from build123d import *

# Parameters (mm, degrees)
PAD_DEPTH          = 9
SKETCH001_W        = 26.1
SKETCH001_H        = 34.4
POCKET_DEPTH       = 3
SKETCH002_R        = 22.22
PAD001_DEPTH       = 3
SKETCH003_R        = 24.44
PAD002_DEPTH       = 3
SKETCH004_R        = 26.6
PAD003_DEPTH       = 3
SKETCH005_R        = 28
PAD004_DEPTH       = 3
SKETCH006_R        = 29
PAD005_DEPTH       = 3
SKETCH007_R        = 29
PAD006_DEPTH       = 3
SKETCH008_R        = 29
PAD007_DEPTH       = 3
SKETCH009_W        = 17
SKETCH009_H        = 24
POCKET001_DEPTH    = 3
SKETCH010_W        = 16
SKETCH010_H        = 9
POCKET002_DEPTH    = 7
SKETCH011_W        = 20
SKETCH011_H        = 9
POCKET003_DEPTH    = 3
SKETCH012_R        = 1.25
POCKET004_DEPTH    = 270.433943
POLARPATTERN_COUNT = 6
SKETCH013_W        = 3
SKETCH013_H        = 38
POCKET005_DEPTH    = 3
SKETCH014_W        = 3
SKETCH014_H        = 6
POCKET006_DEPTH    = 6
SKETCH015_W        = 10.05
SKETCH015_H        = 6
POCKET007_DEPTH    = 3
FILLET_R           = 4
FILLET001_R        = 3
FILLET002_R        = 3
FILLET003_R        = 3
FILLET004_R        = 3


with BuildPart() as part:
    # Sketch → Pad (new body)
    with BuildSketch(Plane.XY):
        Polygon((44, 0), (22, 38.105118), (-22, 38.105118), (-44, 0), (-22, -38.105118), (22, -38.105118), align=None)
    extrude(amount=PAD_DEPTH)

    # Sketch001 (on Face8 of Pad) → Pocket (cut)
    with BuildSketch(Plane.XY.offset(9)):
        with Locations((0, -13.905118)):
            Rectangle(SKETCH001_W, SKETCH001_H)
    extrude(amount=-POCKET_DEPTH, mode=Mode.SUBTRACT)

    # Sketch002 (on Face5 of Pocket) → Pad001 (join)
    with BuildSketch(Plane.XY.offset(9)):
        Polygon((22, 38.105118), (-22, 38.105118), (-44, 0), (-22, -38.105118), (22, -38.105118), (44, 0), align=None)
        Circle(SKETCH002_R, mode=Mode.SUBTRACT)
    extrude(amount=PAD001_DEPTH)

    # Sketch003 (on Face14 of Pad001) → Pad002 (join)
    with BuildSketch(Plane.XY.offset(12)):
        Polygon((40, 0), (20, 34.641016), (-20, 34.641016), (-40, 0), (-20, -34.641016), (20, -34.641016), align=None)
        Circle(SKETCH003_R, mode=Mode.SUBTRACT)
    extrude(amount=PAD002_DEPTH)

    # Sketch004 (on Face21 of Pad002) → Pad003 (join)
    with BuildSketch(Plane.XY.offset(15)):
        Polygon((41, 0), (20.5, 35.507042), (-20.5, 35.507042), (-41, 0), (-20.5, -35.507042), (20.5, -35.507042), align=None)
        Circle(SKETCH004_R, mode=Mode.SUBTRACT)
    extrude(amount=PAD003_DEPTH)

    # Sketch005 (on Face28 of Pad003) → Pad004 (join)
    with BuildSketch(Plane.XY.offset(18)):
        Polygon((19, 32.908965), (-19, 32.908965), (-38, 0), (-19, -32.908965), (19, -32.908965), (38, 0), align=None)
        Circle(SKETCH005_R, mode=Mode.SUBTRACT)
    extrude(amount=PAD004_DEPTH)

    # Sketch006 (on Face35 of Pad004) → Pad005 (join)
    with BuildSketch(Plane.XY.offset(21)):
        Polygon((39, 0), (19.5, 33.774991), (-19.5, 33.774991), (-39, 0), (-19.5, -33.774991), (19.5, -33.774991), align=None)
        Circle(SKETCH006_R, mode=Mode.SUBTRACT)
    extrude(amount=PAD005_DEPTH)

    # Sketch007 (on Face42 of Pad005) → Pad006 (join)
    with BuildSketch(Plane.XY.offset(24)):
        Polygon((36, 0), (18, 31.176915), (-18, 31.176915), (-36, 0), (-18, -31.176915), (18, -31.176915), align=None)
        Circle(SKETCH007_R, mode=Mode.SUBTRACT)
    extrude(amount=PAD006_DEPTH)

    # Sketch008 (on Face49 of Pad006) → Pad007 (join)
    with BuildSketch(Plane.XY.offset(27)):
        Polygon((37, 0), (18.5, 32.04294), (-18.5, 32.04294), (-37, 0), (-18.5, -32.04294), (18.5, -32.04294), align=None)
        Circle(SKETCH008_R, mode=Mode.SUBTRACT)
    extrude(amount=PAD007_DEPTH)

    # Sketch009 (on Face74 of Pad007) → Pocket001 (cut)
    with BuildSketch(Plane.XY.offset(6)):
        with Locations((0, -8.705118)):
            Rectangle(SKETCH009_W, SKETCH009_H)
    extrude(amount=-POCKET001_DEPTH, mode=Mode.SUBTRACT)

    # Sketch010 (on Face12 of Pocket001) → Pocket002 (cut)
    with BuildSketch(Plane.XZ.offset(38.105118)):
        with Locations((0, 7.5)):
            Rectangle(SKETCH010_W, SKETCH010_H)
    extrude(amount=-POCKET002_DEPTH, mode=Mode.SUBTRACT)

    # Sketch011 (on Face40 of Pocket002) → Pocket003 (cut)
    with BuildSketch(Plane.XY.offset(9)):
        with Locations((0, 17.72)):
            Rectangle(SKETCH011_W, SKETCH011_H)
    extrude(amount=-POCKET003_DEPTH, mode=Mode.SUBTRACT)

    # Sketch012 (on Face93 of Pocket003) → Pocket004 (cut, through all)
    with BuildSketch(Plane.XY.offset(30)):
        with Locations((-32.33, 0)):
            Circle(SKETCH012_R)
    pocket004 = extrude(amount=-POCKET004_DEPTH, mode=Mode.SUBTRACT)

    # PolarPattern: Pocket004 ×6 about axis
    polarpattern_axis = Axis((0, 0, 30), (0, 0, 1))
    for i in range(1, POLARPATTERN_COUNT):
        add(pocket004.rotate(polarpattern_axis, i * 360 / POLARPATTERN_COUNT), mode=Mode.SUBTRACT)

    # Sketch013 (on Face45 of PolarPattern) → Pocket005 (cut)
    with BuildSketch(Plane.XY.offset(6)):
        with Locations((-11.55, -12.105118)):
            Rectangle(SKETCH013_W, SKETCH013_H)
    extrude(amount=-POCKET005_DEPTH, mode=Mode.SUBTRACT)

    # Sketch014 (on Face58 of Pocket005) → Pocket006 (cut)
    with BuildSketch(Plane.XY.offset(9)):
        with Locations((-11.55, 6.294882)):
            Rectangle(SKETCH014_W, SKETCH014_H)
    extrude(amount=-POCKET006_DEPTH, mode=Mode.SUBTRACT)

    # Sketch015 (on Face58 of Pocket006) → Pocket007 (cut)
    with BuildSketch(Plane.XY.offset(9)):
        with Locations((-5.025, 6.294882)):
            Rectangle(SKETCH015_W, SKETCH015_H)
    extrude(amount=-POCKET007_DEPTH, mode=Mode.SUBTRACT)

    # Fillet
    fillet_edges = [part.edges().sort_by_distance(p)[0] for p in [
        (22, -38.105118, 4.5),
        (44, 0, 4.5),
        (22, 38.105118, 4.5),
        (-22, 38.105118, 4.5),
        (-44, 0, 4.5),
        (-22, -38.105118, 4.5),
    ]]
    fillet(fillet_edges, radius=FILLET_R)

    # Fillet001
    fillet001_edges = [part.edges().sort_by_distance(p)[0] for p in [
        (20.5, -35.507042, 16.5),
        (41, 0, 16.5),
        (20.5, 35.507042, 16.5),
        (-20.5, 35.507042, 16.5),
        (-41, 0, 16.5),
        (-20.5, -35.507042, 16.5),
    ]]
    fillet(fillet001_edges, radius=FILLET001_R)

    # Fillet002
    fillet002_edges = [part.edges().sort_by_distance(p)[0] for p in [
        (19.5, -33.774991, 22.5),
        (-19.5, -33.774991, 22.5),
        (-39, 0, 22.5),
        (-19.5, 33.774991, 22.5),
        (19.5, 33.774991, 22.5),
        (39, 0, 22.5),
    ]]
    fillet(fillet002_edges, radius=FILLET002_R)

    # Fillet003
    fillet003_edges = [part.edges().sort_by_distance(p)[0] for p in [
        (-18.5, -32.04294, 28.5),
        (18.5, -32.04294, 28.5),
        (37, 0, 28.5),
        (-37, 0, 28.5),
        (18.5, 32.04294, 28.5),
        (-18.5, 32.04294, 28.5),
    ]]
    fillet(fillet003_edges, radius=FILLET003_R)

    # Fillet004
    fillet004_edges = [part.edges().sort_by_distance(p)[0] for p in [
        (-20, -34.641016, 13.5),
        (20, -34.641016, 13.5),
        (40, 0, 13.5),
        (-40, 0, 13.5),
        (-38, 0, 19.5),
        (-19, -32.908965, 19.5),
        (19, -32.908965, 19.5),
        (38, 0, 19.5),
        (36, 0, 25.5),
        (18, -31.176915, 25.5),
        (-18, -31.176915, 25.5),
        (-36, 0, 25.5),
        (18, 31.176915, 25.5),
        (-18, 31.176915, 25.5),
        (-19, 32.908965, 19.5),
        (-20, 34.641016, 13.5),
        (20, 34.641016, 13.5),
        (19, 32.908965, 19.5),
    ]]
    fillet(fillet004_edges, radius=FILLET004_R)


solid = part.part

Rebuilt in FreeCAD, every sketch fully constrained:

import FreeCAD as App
import Part
import Sketcher
from FreeCAD import Vector
Q = App.Units.Quantity


def edges_at(feature, points):
    """Names of the edges that pass closest to the given points."""
    edges = feature.Shape.Edges
    near = lambda p: min(range(len(edges)), key=lambda i: edges[i].distToShape(Part.Vertex(*p))[0])
    return sorted({f"Edge{near(p) + 1}" for p in points})


def add_polygon(sketch, points):
    """Adds a closed chain of lines whose ends are joined by coincident constraints."""
    first, n = sketch.GeometryCount, len(points)
    for a, b in zip(points, points[1:] + points[:1]):
        sketch.addGeometry(Part.LineSegment(App.Vector(*a, 0), App.Vector(*b, 0)), False)
    for i in range(n):
        sketch.addConstraint(Sketcher.Constraint("Coincident", first + i, 2, first + (i + 1) % n, 1))

doc = App.newDocument("Part")
params = doc.addObject("Spreadsheet::Sheet", "Params")
for row, (alias, value) in enumerate([
    ("sketch1_width", "44 mm"),
    ("sketch1_length", "44 mm"),
    ("pad1_length", "9 mm"),
    ("sketch2_width", "26.1 mm"),
    ("sketch2_height", "34.4 mm"),
    ("pocket1_length", "3 mm"),
    ("sketch3_diameter", "44.44 mm"),
    ("sketch3_width", "44 mm"),
    ("sketch3_length", "44 mm"),
    ("pad2_length", "3 mm"),
    ("sketch4_diameter", "48.88 mm"),
    ("sketch4_width", "40 mm"),
    ("sketch4_length", "40 mm"),
    ("pad3_length", "3 mm"),
    ("sketch5_diameter", "53.2 mm"),
    ("sketch5_width", "41 mm"),
    ("sketch5_length", "41 mm"),
    ("pad4_length", "3 mm"),
    ("sketch6_diameter", "56 mm"),
    ("sketch6_width", "38 mm"),
    ("sketch6_length", "38 mm"),
    ("pad5_length", "3 mm"),
    ("sketch7_diameter", "58 mm"),
    ("sketch7_width", "39 mm"),
    ("sketch7_length", "39 mm"),
    ("pad6_length", "3 mm"),
    ("sketch8_diameter", "58 mm"),
    ("sketch8_width", "36 mm"),
    ("sketch8_length", "36 mm"),
    ("pad7_length", "3 mm"),
    ("sketch9_diameter", "58 mm"),
    ("sketch9_width", "37 mm"),
    ("sketch9_length", "37 mm"),
    ("pad8_length", "3 mm"),
    ("sketch10_width", "17 mm"),
    ("sketch10_height", "24 mm"),
    ("pocket2_length", "3 mm"),
    ("sketch11_width", "16 mm"),
    ("sketch11_height", "9 mm"),
    ("pocket3_length", "7 mm"),
    ("sketch12_width", "20 mm"),
    ("sketch12_height", "9 mm"),
    ("pocket4_length", "3 mm"),
    ("sketch13_diameter", "2.5 mm"),
    ("sketch14_width", "3 mm"),
    ("sketch14_height", "38 mm"),
    ("pocket6_length", "3 mm"),
    ("sketch15_width", "3 mm"),
    ("sketch15_height", "6 mm"),
    ("pocket7_length", "6 mm"),
    ("sketch16_height", "6 mm"),
    ("sketch16_width", "10.05 mm"),
    ("pocket8_length", "3 mm"),
    ("fillet_radius", "4 mm"),
    ("fillet2_radius", "3 mm"),
    ("fillet3_radius", "3 mm"),
    ("fillet4_radius", "3 mm"),
    ("fillet5_radius", "3 mm"),
], start=1):
    params.set(f"A{row}", alias)
    params.set(f"B{row}", "=" + value)
    params.setAlias(f"B{row}", alias)

body = doc.addObject("PartDesign::Body", "Body")

# Sketch on XY plane
sketch1 = body.newObject("Sketcher::SketchObject", "Sketch")
sketch1.AttachmentSupport = (doc.getObject("XY_Plane"), [""])
sketch1.MapMode = "FlatFace"
add_polygon(sketch1, [(44, 0), (22, 38), (-22, 38), (-44, 0), (-22, -38), (22, -38)])  # lines 0-5
sketch1.addConstraint([
    Sketcher.Constraint("Horizontal", 1),
    Sketcher.Constraint("Horizontal", 4),
    Sketcher.Constraint("Symmetric", 0, 2, 3, 2, -1, 1),
    Sketcher.Constraint("Symmetric", 2, 2, 5, 2, -1, 1),
    Sketcher.Constraint("PointOnObject", 2, 2, -1),
    Sketcher.Constraint("Parallel", 2, 5),
    Sketcher.Constraint("Vertical", 1, 2, 3, 2),
    Sketcher.Constraint("DistanceX", 1, 2, 1, 1, Q("44 mm")),
    Sketcher.Constraint("Angle", 0, Q("120 deg")),
    Sketcher.Constraint("Distance", 0, Q("44 mm")),
])
sketch1.setExpression("Constraints[13]", "Params.sketch1_width")
sketch1.setExpression("Constraints[15]", "Params.sketch1_length")
pad1 = body.newObject("PartDesign::Pad", "Pad")
pad1.Profile = sketch1
pad1.setExpression("Length", "Params.pad1_length")

# Sketch on XY plane
sketch2 = body.newObject("Sketcher::SketchObject", "Sketch001")
sketch2.AttachmentSupport = (doc.getObject("XY_Plane"), [""])
sketch2.MapMode = "FlatFace"
sketch2.AttachmentOffset = App.Placement(Vector(0, 0, 9), App.Rotation())
add_polygon(sketch2, [(-13, 3), (-13, -31), (13, -31), (13, 3)])  # lines 0-3
sketch2.addConstraint([
    Sketcher.Constraint("Vertical", 0),
    Sketcher.Constraint("Horizontal", 1),
    Sketcher.Constraint("Vertical", 2),
    Sketcher.Constraint("Horizontal", 3),
    Sketcher.Constraint("DistanceX", 1, 1, 1, 2, Q("26.1 mm")),
    Sketcher.Constraint("DistanceY", 0, 2, 0, 1, Q("34.4 mm")),
    Sketcher.Constraint("DistanceX", 0, 2, -1, 1, Q("13.05 mm")),
    Sketcher.Constraint("DistanceY", 0, 2, -1, 1, Q("31.105118 mm")),
])
sketch2.setExpression("Constraints[8]", "Params.sketch2_width")
sketch2.setExpression("Constraints[9]", "Params.sketch2_height")
pocket1 = body.newObject("PartDesign::Pocket", "Pocket")
pocket1.Profile = sketch2
pocket1.setExpression("Length", "Params.pocket1_length")

# Sketch on XY plane
sketch3 = body.newObject("Sketcher::SketchObject", "Sketch002")
sketch3.AttachmentSupport = (doc.getObject("XY_Plane"), [""])
sketch3.MapMode = "FlatFace"
sketch3.AttachmentOffset = App.Placement(Vector(0, 0, 9), App.Rotation())
add_polygon(sketch3, [(22, 38), (-22, 38), (-44, 0), (-22, -38), (22, -38), (44, 0)])  # lines 0-5
sketch3.addGeometry(Part.Circle(Vector(0, 0, 0), Vector(0, 0, 1), 22), False)  # 6
sketch3.addConstraint([
    Sketcher.Constraint("Horizontal", 0),
    Sketcher.Constraint("Horizontal", 3),
    Sketcher.Constraint("Coincident", 6, 3, -1, 1),
    Sketcher.Constraint("Symmetric", 0, 2, 3, 2, -1, 1),
    Sketcher.Constraint("Symmetric", 1, 2, 4, 2, -1, 1),
    Sketcher.Constraint("PointOnObject", 1, 2, -1),
    Sketcher.Constraint("Parallel", 2, 5),
    Sketcher.Constraint("Vertical", 0, 2, 2, 2),
    Sketcher.Constraint("Diameter", 6, Q("44.44 mm")),
    Sketcher.Constraint("DistanceX", 0, 2, 0, 1, Q("44 mm")),
    Sketcher.Constraint("Angle", 1, Q("-120 deg")),
    Sketcher.Constraint("Distance", 1, Q("44 mm")),
])
sketch3.setExpression("Constraints[14]", "Params.sketch3_diameter")
sketch3.setExpression("Constraints[15]", "Params.sketch3_width")
sketch3.setExpression("Constraints[17]", "Params.sketch3_length")
pad2 = body.newObject("PartDesign::Pad", "Pad001")
pad2.Profile = sketch3
pad2.setExpression("Length", "Params.pad2_length")

# Sketch on XY plane
sketch4 = body.newObject("Sketcher::SketchObject", "Sketch003")
sketch4.AttachmentSupport = (doc.getObject("XY_Plane"), [""])
sketch4.MapMode = "FlatFace"
sketch4.AttachmentOffset = App.Placement(Vector(0, 0, 12), App.Rotation())
add_polygon(sketch4, [(40, 0), (20, 35), (-20, 35), (-40, 0), (-20, -35), (20, -35)])  # lines 0-5
sketch4.addGeometry(Part.Circle(Vector(0, 0, 0), Vector(0, 0, 1), 24), False)  # 6
sketch4.addConstraint([
    Sketcher.Constraint("Horizontal", 1),
    Sketcher.Constraint("Horizontal", 4),
    Sketcher.Constraint("Coincident", 6, 3, -1, 1),
    Sketcher.Constraint("Symmetric", 0, 2, 3, 2, -1, 1),
    Sketcher.Constraint("Symmetric", 2, 2, 5, 2, -1, 1),
    Sketcher.Constraint("PointOnObject", 2, 2, -1),
    Sketcher.Constraint("Parallel", 2, 5),
    Sketcher.Constraint("Vertical", 1, 2, 3, 2),
    Sketcher.Constraint("Diameter", 6, Q("48.88 mm")),
    Sketcher.Constraint("DistanceX", 1, 2, 1, 1, Q("40 mm")),
    Sketcher.Constraint("Angle", 0, Q("120 deg")),
    Sketcher.Constraint("Distance", 0, Q("40 mm")),
])
sketch4.setExpression("Constraints[14]", "Params.sketch4_diameter")
sketch4.setExpression("Constraints[15]", "Params.sketch4_width")
sketch4.setExpression("Constraints[17]", "Params.sketch4_length")
pad3 = body.newObject("PartDesign::Pad", "Pad002")
pad3.Profile = sketch4
pad3.setExpression("Length", "Params.pad3_length")

# Sketch on XY plane
sketch5 = body.newObject("Sketcher::SketchObject", "Sketch004")
sketch5.AttachmentSupport = (doc.getObject("XY_Plane"), [""])
sketch5.MapMode = "FlatFace"
sketch5.AttachmentOffset = App.Placement(Vector(0, 0, 15), App.Rotation())
add_polygon(sketch5, [(41, 0), (20, 36), (-20, 36), (-41, 0), (-20, -36), (20, -36)])  # lines 0-5
sketch5.addGeometry(Part.Circle(Vector(0, 0, 0), Vector(0, 0, 1), 27), False)  # 6
sketch5.addConstraint([
    Sketcher.Constraint("Horizontal", 1),
    Sketcher.Constraint("Horizontal", 4),
    Sketcher.Constraint("Coincident", 6, 3, -1, 1),
    Sketcher.Constraint("Symmetric", 0, 2, 3, 2, -1, 1),
    Sketcher.Constraint("Symmetric", 2, 2, 5, 2, -1, 1),
    Sketcher.Constraint("PointOnObject", 2, 2, -1),
    Sketcher.Constraint("Parallel", 2, 5),
    Sketcher.Constraint("Vertical", 1, 2, 3, 2),
    Sketcher.Constraint("Diameter", 6, Q("53.2 mm")),
    Sketcher.Constraint("DistanceX", 1, 2, 1, 1, Q("41 mm")),
    Sketcher.Constraint("Angle", 0, Q("120 deg")),
    Sketcher.Constraint("Distance", 0, Q("41 mm")),
])
sketch5.setExpression("Constraints[14]", "Params.sketch5_diameter")
sketch5.setExpression("Constraints[15]", "Params.sketch5_width")
sketch5.setExpression("Constraints[17]", "Params.sketch5_length")
pad4 = body.newObject("PartDesign::Pad", "Pad003")
pad4.Profile = sketch5
pad4.setExpression("Length", "Params.pad4_length")

# Sketch on XY plane
sketch6 = body.newObject("Sketcher::SketchObject", "Sketch005")
sketch6.AttachmentSupport = (doc.getObject("XY_Plane"), [""])
sketch6.MapMode = "FlatFace"
sketch6.AttachmentOffset = App.Placement(Vector(0, 0, 18), App.Rotation())
add_polygon(sketch6, [(19, 33), (-19, 33), (-38, 0), (-19, -33), (19, -33), (38, 0)])  # lines 0-5
sketch6.addGeometry(Part.Circle(Vector(0, 0, 0), Vector(0, 0, 1), 28), False)  # 6
sketch6.addConstraint([
    Sketcher.Constraint("Horizontal", 0),
    Sketcher.Constraint("Horizontal", 3),
    Sketcher.Constraint("Coincident", 6, 3, -1, 1),
    Sketcher.Constraint("Symmetric", 0, 2, 3, 2, -1, 1),
    Sketcher.Constraint("Symmetric", 1, 2, 4, 2, -1, 1),
    Sketcher.Constraint("PointOnObject", 1, 2, -1),
    Sketcher.Constraint("Parallel", 2, 5),
    Sketcher.Constraint("Vertical", 0, 2, 2, 2),
    Sketcher.Constraint("Diameter", 6, Q("56 mm")),
    Sketcher.Constraint("DistanceX", 0, 2, 0, 1, Q("38 mm")),
    Sketcher.Constraint("Angle", 1, Q("-120 deg")),
    Sketcher.Constraint("Distance", 1, Q("38 mm")),
])
sketch6.setExpression("Constraints[14]", "Params.sketch6_diameter")
sketch6.setExpression("Constraints[15]", "Params.sketch6_width")
sketch6.setExpression("Constraints[17]", "Params.sketch6_length")
pad5 = body.newObject("PartDesign::Pad", "Pad004")
pad5.Profile = sketch6
pad5.setExpression("Length", "Params.pad5_length")

# Sketch on XY plane
sketch7 = body.newObject("Sketcher::SketchObject", "Sketch006")
sketch7.AttachmentSupport = (doc.getObject("XY_Plane"), [""])
sketch7.MapMode = "FlatFace"
sketch7.AttachmentOffset = App.Placement(Vector(0, 0, 21), App.Rotation())
add_polygon(sketch7, [(39, 0), (20, 34), (-20, 34), (-39, 0), (-20, -34), (20, -34)])  # lines 0-5
sketch7.addGeometry(Part.Circle(Vector(0, 0, 0), Vector(0, 0, 1), 29), False)  # 6
sketch7.addConstraint([
    Sketcher.Constraint("Horizontal", 1),
    Sketcher.Constraint("Horizontal", 4),
    Sketcher.Constraint("Coincident", 6, 3, -1, 1),
    Sketcher.Constraint("Symmetric", 0, 2, 3, 2, -1, 1),
    Sketcher.Constraint("Symmetric", 2, 2, 5, 2, -1, 1),
    Sketcher.Constraint("PointOnObject", 2, 2, -1),
    Sketcher.Constraint("Parallel", 2, 5),
    Sketcher.Constraint("Vertical", 1, 2, 3, 2),
    Sketcher.Constraint("Diameter", 6, Q("58 mm")),
    Sketcher.Constraint("DistanceX", 1, 2, 1, 1, Q("39 mm")),
    Sketcher.Constraint("Angle", 0, Q("120 deg")),
    Sketcher.Constraint("Distance", 0, Q("39 mm")),
])
sketch7.setExpression("Constraints[14]", "Params.sketch7_diameter")
sketch7.setExpression("Constraints[15]", "Params.sketch7_width")
sketch7.setExpression("Constraints[17]", "Params.sketch7_length")
pad6 = body.newObject("PartDesign::Pad", "Pad005")
pad6.Profile = sketch7
pad6.setExpression("Length", "Params.pad6_length")

# Sketch on XY plane
sketch8 = body.newObject("Sketcher::SketchObject", "Sketch007")
sketch8.AttachmentSupport = (doc.getObject("XY_Plane"), [""])
sketch8.MapMode = "FlatFace"
sketch8.AttachmentOffset = App.Placement(Vector(0, 0, 24), App.Rotation())
add_polygon(sketch8, [(36, 0), (18, 31), (-18, 31), (-36, 0), (-18, -31), (18, -31)])  # lines 0-5
sketch8.addGeometry(Part.Circle(Vector(0, 0, 0), Vector(0, 0, 1), 29), False)  # 6
sketch8.addConstraint([
    Sketcher.Constraint("Horizontal", 1),
    Sketcher.Constraint("Horizontal", 4),
    Sketcher.Constraint("Coincident", 6, 3, -1, 1),
    Sketcher.Constraint("Symmetric", 0, 2, 3, 2, -1, 1),
    Sketcher.Constraint("Symmetric", 2, 2, 5, 2, -1, 1),
    Sketcher.Constraint("PointOnObject", 2, 2, -1),
    Sketcher.Constraint("Parallel", 2, 5),
    Sketcher.Constraint("Vertical", 1, 2, 3, 2),
    Sketcher.Constraint("Diameter", 6, Q("58 mm")),
    Sketcher.Constraint("DistanceX", 1, 2, 1, 1, Q("36 mm")),
    Sketcher.Constraint("Angle", 0, Q("120 deg")),
    Sketcher.Constraint("Distance", 0, Q("36 mm")),
])
sketch8.setExpression("Constraints[14]", "Params.sketch8_diameter")
sketch8.setExpression("Constraints[15]", "Params.sketch8_width")
sketch8.setExpression("Constraints[17]", "Params.sketch8_length")
pad7 = body.newObject("PartDesign::Pad", "Pad006")
pad7.Profile = sketch8
pad7.setExpression("Length", "Params.pad7_length")

# Sketch on XY plane
sketch9 = body.newObject("Sketcher::SketchObject", "Sketch008")
sketch9.AttachmentSupport = (doc.getObject("XY_Plane"), [""])
sketch9.MapMode = "FlatFace"
sketch9.AttachmentOffset = App.Placement(Vector(0, 0, 27), App.Rotation())
add_polygon(sketch9, [(37, 0), (18, 32), (-18, 32), (-37, 0), (-18, -32), (18, -32)])  # lines 0-5
sketch9.addGeometry(Part.Circle(Vector(0, 0, 0), Vector(0, 0, 1), 29), False)  # 6
sketch9.addConstraint([
    Sketcher.Constraint("Horizontal", 1),
    Sketcher.Constraint("Horizontal", 4),
    Sketcher.Constraint("Coincident", 6, 3, -1, 1),
    Sketcher.Constraint("Symmetric", 0, 2, 3, 2, -1, 1),
    Sketcher.Constraint("Symmetric", 2, 2, 5, 2, -1, 1),
    Sketcher.Constraint("PointOnObject", 2, 2, -1),
    Sketcher.Constraint("Parallel", 2, 5),
    Sketcher.Constraint("Vertical", 1, 2, 3, 2),
    Sketcher.Constraint("Diameter", 6, Q("58 mm")),
    Sketcher.Constraint("DistanceX", 1, 2, 1, 1, Q("37 mm")),
    Sketcher.Constraint("Angle", 0, Q("120 deg")),
    Sketcher.Constraint("Distance", 0, Q("37 mm")),
])
sketch9.setExpression("Constraints[14]", "Params.sketch9_diameter")
sketch9.setExpression("Constraints[15]", "Params.sketch9_width")
sketch9.setExpression("Constraints[17]", "Params.sketch9_length")
pad8 = body.newObject("PartDesign::Pad", "Pad007")
pad8.Profile = sketch9
pad8.setExpression("Length", "Params.pad8_length")

# Sketch on XY plane
sketch10 = body.newObject("Sketcher::SketchObject", "Sketch009")
sketch10.AttachmentSupport = (doc.getObject("XY_Plane"), [""])
sketch10.MapMode = "FlatFace"
sketch10.AttachmentOffset = App.Placement(Vector(0, 0, 6), App.Rotation())
add_polygon(sketch10, [(-8, 3), (-8, -21), (8, -21), (8, 3)])  # lines 0-3
sketch10.addConstraint([
    Sketcher.Constraint("Vertical", 0),
    Sketcher.Constraint("Horizontal", 1),
    Sketcher.Constraint("Vertical", 2),
    Sketcher.Constraint("Horizontal", 3),
    Sketcher.Constraint("DistanceX", 1, 1, 1, 2, Q("17 mm")),
    Sketcher.Constraint("DistanceY", 0, 2, 0, 1, Q("24 mm")),
    Sketcher.Constraint("DistanceX", 0, 2, -1, 1, Q("8.5 mm")),
    Sketcher.Constraint("DistanceY", -1, 1, 2, 2, Q("3.294882 mm")),
])
sketch10.setExpression("Constraints[8]", "Params.sketch10_width")
sketch10.setExpression("Constraints[9]", "Params.sketch10_height")
pocket2 = body.newObject("PartDesign::Pocket", "Pocket001")
pocket2.Profile = sketch10
pocket2.setExpression("Length", "Params.pocket2_length")

# Sketch on XZ plane
sketch11 = body.newObject("Sketcher::SketchObject", "Sketch010")
sketch11.AttachmentSupport = (doc.getObject("XZ_Plane"), [""])
sketch11.MapMode = "FlatFace"
sketch11.AttachmentOffset = App.Placement(Vector(0, 0, 38.105118), App.Rotation())
add_polygon(sketch11, [(-8, 12), (-8, 3), (8, 3), (8, 12)])  # lines 0-3
sketch11.addConstraint([
    Sketcher.Constraint("Vertical", 0),
    Sketcher.Constraint("Horizontal", 1),
    Sketcher.Constraint("Vertical", 2),
    Sketcher.Constraint("Horizontal", 3),
    Sketcher.Constraint("DistanceX", 1, 1, 1, 2, Q("16 mm")),
    Sketcher.Constraint("DistanceY", 0, 2, 0, 1, Q("9 mm")),
    Sketcher.Constraint("DistanceX", 0, 2, -1, 1, Q("8 mm")),
    Sketcher.Constraint("DistanceY", -1, 1, 0, 2, Q("3 mm")),
])
sketch11.setExpression("Constraints[8]", "Params.sketch11_width")
sketch11.setExpression("Constraints[9]", "Params.sketch11_height")
pocket3 = body.newObject("PartDesign::Pocket", "Pocket002")
pocket3.Profile = sketch11
pocket3.setExpression("Length", "Params.pocket3_length")

# Sketch on XY plane
sketch12 = body.newObject("Sketcher::SketchObject", "Sketch011")
sketch12.AttachmentSupport = (doc.getObject("XY_Plane"), [""])
sketch12.MapMode = "FlatFace"
sketch12.AttachmentOffset = App.Placement(Vector(0, 0, 9), App.Rotation())
add_polygon(sketch12, [(-10, 22), (-10, 13), (10, 13), (10, 22)])  # lines 0-3
sketch12.addConstraint([
    Sketcher.Constraint("Vertical", 0),
    Sketcher.Constraint("Horizontal", 1),
    Sketcher.Constraint("Vertical", 2),
    Sketcher.Constraint("Horizontal", 3),
    Sketcher.Constraint("DistanceX", 1, 1, 1, 2, Q("20 mm")),
    Sketcher.Constraint("DistanceY", 0, 2, 0, 1, Q("9 mm")),
    Sketcher.Constraint("DistanceX", 0, 2, -1, 1, Q("10 mm")),
    Sketcher.Constraint("DistanceY", -1, 1, 0, 2, Q("13.22 mm")),
])
sketch12.setExpression("Constraints[8]", "Params.sketch12_width")
sketch12.setExpression("Constraints[9]", "Params.sketch12_height")
pocket4 = body.newObject("PartDesign::Pocket", "Pocket003")
pocket4.Profile = sketch12
pocket4.setExpression("Length", "Params.pocket4_length")

# Sketch on XY plane
sketch13 = body.newObject("Sketcher::SketchObject", "Sketch012")
sketch13.AttachmentSupport = (doc.getObject("XY_Plane"), [""])
sketch13.MapMode = "FlatFace"
sketch13.AttachmentOffset = App.Placement(Vector(0, 0, 30), App.Rotation())
sketch13.addGeometry(Part.Circle(Vector(-32.3, 0, 0), Vector(0, 0, 1), 1.2), False)
sketch13.addConstraint([
    Sketcher.Constraint("PointOnObject", 0, 3, -1),
    Sketcher.Constraint("Diameter", 0, Q("2.5 mm")),
    Sketcher.Constraint("DistanceX", 0, 3, -1, 1, Q("32.33 mm")),
])
sketch13.setExpression("Constraints[1]", "Params.sketch13_diameter")
pocket5 = body.newObject("PartDesign::Pocket", "Pocket004")
pocket5.Profile = sketch13
pocket5.Type = "ThroughAll"
doc.recompute()

polarpattern = body.newObject("PartDesign::PolarPattern", "PolarPattern")
polarpattern.Originals = [pocket5]
polarpattern.Axis = (doc.getObject("Z_Axis"), [""])
polarpattern.Angle = 360
polarpattern.Occurrences = 6
body.Tip = polarpattern

# Sketch on XY plane
sketch14 = body.newObject("Sketcher::SketchObject", "Sketch013")
sketch14.AttachmentSupport = (doc.getObject("XY_Plane"), [""])
sketch14.MapMode = "FlatFace"
sketch14.AttachmentOffset = App.Placement(Vector(0, 0, 6), App.Rotation())
add_polygon(sketch14, [(-13.1, 6.9), (-13.1, -31.1), (-10.1, -31.1), (-10.1, 6.9)])  # lines 0-3
sketch14.addConstraint([
    Sketcher.Constraint("Vertical", 0),
    Sketcher.Constraint("Horizontal", 1),
    Sketcher.Constraint("Vertical", 2),
    Sketcher.Constraint("Horizontal", 3),
    Sketcher.Constraint("DistanceX", 1, 1, 1, 2, Q("3 mm")),
    Sketcher.Constraint("DistanceY", 0, 2, 0, 1, Q("38 mm")),
    Sketcher.Constraint("DistanceX", 0, 2, -1, 1, Q("13.05 mm")),
    Sketcher.Constraint("DistanceY", 0, 2, -1, 1, Q("31.105118 mm")),
])
sketch14.setExpression("Constraints[8]", "Params.sketch14_width")
sketch14.setExpression("Constraints[9]", "Params.sketch14_height")
pocket6 = body.newObject("PartDesign::Pocket", "Pocket005")
pocket6.Profile = sketch14
pocket6.setExpression("Length", "Params.pocket6_length")

# Sketch on XY plane
sketch15 = body.newObject("Sketcher::SketchObject", "Sketch014")
sketch15.AttachmentSupport = (doc.getObject("XY_Plane"), [""])
sketch15.MapMode = "FlatFace"
sketch15.AttachmentOffset = App.Placement(Vector(0, 0, 9), App.Rotation())
add_polygon(sketch15, [(-13.1, 9.3), (-13.1, 3.3), (-10.1, 3.3), (-10.1, 9.3)])  # lines 0-3
sketch15.addConstraint([
    Sketcher.Constraint("Vertical", 0),
    Sketcher.Constraint("Horizontal", 1),
    Sketcher.Constraint("Vertical", 2),
    Sketcher.Constraint("Horizontal", 3),
    Sketcher.Constraint("DistanceX", 1, 1, 1, 2, Q("3 mm")),
    Sketcher.Constraint("DistanceY", 0, 2, 0, 1, Q("6 mm")),
    Sketcher.Constraint("DistanceX", 0, 2, -1, 1, Q("13.05 mm")),
    Sketcher.Constraint("DistanceY", -1, 1, 0, 2, Q("3.294882 mm")),
])
sketch15.setExpression("Constraints[8]", "Params.sketch15_width")
sketch15.setExpression("Constraints[9]", "Params.sketch15_height")
pocket7 = body.newObject("PartDesign::Pocket", "Pocket006")
pocket7.Profile = sketch15
pocket7.setExpression("Length", "Params.pocket7_length")

# Sketch on XY plane
sketch16 = body.newObject("Sketcher::SketchObject", "Sketch015")
sketch16.AttachmentSupport = (doc.getObject("XY_Plane"), [""])
sketch16.MapMode = "FlatFace"
sketch16.AttachmentOffset = App.Placement(Vector(0, 0, 9), App.Rotation())
add_polygon(sketch16, [(-10, 9), (-10, 3), (0, 3), (0, 9)])  # lines 0-3
sketch16.addConstraint([
    Sketcher.Constraint("Vertical", 0),
    Sketcher.Constraint("Horizontal", 1),
    Sketcher.Constraint("Vertical", 2),
    Sketcher.Constraint("Horizontal", 3),
    Sketcher.Constraint("PointOnObject", 1, 2, -2),
    Sketcher.Constraint("DistanceY", 0, 2, 0, 1, Q("6 mm")),
    Sketcher.Constraint("DistanceX", 1, 1, 1, 2, Q("10.05 mm")),
    Sketcher.Constraint("DistanceY", -1, 1, 0, 2, Q("3.294882 mm")),
])
sketch16.setExpression("Constraints[9]", "Params.sketch16_height")
sketch16.setExpression("Constraints[10]", "Params.sketch16_width")
pocket8 = body.newObject("PartDesign::Pocket", "Pocket007")
pocket8.Profile = sketch16
pocket8.setExpression("Length", "Params.pocket8_length")
doc.recompute()

fillet = body.newObject("PartDesign::Fillet", "Fillet")
fillet.Base = (pocket8, edges_at(pocket8, [
    (22, -38.105, 6),
    (44, 0, 6),
    (22, 38.105, 6),
    (-22, 38.105, 6),
    (-44, 0, 6),
    (-22, -38.105, 6),
]))
fillet.setExpression("Radius", "Params.fillet_radius")
doc.recompute()

fillet2 = body.newObject("PartDesign::Fillet", "Fillet001")
fillet2.Base = (fillet, edges_at(fillet, [
    (20.5, -35.507, 16.5),
    (41, 0, 16.5),
    (20.5, 35.507, 16.5),
    (-20.5, 35.507, 16.5),
    (-41, 0, 16.5),
    (-20.5, -35.507, 16.5),
]))
fillet2.setExpression("Radius", "Params.fillet2_radius")
doc.recompute()

fillet3 = body.newObject("PartDesign::Fillet", "Fillet002")
fillet3.Base = (fillet2, edges_at(fillet2, [
    (19.5, -33.775, 22.5),
    (-19.5, -33.775, 22.5),
    (-39, 0, 22.5),
    (-19.5, 33.775, 22.5),
    (19.5, 33.775, 22.5),
    (39, 0, 22.5),
]))
fillet3.setExpression("Radius", "Params.fillet3_radius")
doc.recompute()

fillet4 = body.newObject("PartDesign::Fillet", "Fillet003")
fillet4.Base = (fillet3, edges_at(fillet3, [
    (-18.5, -32.043, 28.5),
    (18.5, -32.043, 28.5),
    (37, 0, 28.5),
    (-37, 0, 28.5),
    (18.5, 32.043, 28.5),
    (-18.5, 32.043, 28.5),
]))
fillet4.setExpression("Radius", "Params.fillet4_radius")
doc.recompute()

fillet5 = body.newObject("PartDesign::Fillet", "Fillet004")
fillet5.Base = (fillet4, edges_at(fillet4, [
    (-20, -34.641, 13.5),
    (20, -34.641, 13.5),
    (40, 0, 13.5),
    (-40, 0, 13.5),
    (-38, 0, 19.5),
    (-19, -32.909, 19.5),
    (19, -32.909, 19.5),
    (38, 0, 19.5),
    (36, 0, 25.5),
    (18, -31.177, 25.5),
    (-18, -31.177, 25.5),
    (-36, 0, 25.5),
    (18, 31.177, 25.5),
    (-18, 31.177, 25.5),
    (-19, 32.909, 19.5),
    (-20, 34.641, 13.5),
    (20, 34.641, 13.5),
    (19, 32.909, 19.5),
]))
fillet5.setExpression("Radius", "Params.fillet5_radius")

doc.recompute()
